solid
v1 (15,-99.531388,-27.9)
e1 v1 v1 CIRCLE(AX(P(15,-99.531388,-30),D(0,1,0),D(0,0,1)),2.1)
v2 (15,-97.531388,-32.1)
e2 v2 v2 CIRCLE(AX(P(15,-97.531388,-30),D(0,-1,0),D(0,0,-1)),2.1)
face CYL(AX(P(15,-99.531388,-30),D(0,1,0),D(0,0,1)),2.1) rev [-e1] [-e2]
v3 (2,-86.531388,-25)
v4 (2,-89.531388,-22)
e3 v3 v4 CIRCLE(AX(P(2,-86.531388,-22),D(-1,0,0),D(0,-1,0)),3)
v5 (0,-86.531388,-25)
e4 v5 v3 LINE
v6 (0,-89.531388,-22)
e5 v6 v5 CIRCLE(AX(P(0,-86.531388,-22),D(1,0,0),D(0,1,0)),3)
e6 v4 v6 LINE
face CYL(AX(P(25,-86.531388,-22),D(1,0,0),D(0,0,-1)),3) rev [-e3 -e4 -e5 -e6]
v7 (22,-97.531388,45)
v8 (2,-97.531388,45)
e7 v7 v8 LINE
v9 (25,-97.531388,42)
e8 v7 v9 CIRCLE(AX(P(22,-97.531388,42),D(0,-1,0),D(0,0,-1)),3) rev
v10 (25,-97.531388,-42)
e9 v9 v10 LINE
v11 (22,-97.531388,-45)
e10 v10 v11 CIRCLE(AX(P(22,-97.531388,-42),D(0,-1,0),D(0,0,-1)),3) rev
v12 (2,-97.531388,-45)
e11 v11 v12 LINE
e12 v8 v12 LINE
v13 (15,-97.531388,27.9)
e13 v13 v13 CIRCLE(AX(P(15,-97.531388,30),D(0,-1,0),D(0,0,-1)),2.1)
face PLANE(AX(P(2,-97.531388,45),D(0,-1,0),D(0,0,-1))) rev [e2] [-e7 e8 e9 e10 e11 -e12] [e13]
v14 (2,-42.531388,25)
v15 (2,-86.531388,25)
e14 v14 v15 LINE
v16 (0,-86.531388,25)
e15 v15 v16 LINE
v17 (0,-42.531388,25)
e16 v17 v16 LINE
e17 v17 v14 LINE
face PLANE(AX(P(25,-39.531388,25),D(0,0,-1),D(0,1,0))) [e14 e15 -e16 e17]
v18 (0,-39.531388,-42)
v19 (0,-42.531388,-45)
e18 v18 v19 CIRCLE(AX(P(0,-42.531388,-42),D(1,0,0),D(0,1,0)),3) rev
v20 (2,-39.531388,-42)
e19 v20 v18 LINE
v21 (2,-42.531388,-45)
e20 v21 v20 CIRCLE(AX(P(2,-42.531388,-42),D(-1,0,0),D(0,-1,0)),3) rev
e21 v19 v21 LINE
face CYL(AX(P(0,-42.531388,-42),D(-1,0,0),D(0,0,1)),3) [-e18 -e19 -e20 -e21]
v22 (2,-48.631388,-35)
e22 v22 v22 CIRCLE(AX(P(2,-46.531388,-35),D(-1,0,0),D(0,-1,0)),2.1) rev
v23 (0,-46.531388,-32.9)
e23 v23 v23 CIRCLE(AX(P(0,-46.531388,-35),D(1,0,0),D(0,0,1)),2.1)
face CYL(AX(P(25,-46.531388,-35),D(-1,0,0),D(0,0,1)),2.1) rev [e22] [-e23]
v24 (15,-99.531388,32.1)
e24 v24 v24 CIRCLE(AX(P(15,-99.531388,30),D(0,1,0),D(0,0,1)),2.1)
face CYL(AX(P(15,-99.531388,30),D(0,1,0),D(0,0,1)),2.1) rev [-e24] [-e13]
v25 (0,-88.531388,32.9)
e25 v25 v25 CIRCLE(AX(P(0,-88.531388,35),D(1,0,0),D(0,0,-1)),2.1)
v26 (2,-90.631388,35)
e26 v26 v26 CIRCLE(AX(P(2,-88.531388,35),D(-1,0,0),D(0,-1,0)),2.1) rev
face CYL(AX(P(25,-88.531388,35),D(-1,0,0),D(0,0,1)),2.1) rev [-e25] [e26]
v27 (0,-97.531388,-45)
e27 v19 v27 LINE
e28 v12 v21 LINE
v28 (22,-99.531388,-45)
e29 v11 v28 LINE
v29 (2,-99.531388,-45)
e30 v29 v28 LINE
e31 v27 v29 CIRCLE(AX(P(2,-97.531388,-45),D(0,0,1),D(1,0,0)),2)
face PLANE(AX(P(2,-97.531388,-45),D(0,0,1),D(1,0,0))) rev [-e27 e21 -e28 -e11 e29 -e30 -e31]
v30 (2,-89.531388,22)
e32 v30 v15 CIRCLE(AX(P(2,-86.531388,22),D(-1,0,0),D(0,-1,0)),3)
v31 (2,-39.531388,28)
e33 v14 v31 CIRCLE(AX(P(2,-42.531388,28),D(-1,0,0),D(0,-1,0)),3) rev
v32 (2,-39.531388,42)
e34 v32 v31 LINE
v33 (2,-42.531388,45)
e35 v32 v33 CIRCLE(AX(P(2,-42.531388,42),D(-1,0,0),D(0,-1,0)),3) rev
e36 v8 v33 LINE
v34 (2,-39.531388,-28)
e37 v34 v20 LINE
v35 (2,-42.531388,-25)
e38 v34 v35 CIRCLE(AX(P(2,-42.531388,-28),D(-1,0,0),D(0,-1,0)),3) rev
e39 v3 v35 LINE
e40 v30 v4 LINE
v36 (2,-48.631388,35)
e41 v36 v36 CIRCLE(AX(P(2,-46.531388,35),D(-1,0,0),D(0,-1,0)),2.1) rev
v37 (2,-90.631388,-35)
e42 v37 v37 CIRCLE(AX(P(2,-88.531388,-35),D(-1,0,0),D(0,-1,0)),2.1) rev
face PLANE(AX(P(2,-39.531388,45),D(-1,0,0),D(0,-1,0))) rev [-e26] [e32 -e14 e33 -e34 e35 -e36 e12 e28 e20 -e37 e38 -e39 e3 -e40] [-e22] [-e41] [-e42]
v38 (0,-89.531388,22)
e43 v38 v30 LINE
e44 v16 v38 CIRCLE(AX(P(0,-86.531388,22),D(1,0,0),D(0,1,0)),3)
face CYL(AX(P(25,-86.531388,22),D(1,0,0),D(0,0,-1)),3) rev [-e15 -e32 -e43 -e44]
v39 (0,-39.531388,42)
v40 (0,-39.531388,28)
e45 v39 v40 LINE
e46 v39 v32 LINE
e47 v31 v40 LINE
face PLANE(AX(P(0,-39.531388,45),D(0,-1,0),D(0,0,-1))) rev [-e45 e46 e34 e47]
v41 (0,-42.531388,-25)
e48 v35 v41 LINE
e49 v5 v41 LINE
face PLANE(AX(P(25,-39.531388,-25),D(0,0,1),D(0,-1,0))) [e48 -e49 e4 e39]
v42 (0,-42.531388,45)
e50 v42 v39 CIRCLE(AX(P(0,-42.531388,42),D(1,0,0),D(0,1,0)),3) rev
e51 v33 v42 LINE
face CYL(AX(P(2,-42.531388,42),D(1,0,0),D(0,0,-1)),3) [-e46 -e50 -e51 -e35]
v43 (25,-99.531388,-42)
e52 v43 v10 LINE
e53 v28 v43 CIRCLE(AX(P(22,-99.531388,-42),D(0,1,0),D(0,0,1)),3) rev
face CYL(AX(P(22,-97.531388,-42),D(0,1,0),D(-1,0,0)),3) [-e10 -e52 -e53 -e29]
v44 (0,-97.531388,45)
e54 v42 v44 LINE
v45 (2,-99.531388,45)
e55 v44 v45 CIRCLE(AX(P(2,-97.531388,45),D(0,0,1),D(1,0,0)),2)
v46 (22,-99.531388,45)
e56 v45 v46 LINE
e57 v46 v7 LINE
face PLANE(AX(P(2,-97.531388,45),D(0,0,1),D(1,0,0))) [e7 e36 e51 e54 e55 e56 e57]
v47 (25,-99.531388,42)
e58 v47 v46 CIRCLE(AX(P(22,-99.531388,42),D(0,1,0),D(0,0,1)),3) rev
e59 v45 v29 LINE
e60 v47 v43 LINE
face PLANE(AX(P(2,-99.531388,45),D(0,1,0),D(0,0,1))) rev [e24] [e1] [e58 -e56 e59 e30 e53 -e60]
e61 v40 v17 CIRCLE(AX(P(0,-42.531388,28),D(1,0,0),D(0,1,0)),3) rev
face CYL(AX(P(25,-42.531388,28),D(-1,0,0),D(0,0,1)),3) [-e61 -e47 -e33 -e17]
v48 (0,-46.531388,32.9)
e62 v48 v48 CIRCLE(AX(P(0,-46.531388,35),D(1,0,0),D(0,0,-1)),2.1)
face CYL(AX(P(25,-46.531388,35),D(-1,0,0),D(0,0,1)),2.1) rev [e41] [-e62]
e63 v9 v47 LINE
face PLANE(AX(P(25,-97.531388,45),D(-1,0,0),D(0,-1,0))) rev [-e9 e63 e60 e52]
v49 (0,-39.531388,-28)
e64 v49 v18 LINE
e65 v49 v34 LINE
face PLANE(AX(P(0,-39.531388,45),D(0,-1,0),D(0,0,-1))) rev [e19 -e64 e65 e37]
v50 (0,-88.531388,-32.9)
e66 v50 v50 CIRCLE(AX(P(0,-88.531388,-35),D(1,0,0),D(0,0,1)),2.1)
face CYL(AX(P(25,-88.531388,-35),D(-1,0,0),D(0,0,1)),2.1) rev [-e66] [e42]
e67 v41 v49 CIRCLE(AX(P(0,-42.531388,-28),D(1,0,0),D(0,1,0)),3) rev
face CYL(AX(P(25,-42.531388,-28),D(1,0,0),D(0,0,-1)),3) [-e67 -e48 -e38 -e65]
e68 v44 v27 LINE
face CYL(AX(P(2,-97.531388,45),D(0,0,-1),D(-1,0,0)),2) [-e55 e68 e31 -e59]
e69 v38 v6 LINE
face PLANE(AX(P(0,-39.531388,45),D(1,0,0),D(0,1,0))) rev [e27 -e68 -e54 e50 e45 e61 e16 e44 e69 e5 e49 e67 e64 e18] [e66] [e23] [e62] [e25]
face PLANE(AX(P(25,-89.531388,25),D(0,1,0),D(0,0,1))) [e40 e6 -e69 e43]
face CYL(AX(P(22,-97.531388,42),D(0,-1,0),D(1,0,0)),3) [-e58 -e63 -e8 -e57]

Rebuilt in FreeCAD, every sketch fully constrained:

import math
import FreeCAD as App
import Part
import Sketcher

V = App.Vector
Q = App.Units.Quantity


def edges_at(feature, points):
    """Names of the edges that pass closest to the given points."""
    edges = feature.Shape.Edges
    near = lambda p: min(range(len(edges)), key=lambda i: edges[i].distToShape(Part.Vertex(*p))[0])
    return sorted({f"Edge{near(p) + 1}" for p in points})

doc = App.newDocument("Part")
body = doc.addObject("PartDesign::Body", "Body")

# Sketch on XY plane
sketch1 = doc.addObject("Sketcher::SketchObject", "Sketch")
body.addObject(sketch1)
sketch1.AttachmentSupport = (doc.XY_Plane, [""])
sketch1.MapMode = "FlatFace"
sketch1.addGeometry([
    Part.LineSegment(V(2, -39.531388, 0), V(0, -39.531388, 0)),  # 0
    Part.LineSegment(V(0, -39.531388, 0), V(0, -97.531388, 0)),  # 1
    Part.ArcOfCircle(Part.Circle(V(2, -97.531388, 0), V(0, 0, 1), 2), math.radians(180), math.radians(270)),  # 2
    Part.LineSegment(V(2, -99.531388, 0), V(25, -99.531388, 0)),  # 3
    Part.LineSegment(V(25, -99.531388, 0), V(25, -97.531388, 0)),  # 4
    Part.LineSegment(V(25, -97.531388, 0), V(2, -97.531388, 0)),  # 5
    Part.LineSegment(V(2, -97.531388, 0), V(2, -39.531388, 0)),  # 6
], False)
sketch1.addConstraint([
    Sketcher.Constraint("Coincident", 0, 2, 1, 1),
    Sketcher.Constraint("Tangent", 1, 2, 2, 1),
    Sketcher.Constraint("Tangent", 2, 2, 3, 1),
    Sketcher.Constraint("Coincident", 3, 2, 4, 1),
    Sketcher.Constraint("Coincident", 4, 2, 5, 1),
    Sketcher.Constraint("Coincident", 5, 2, 6, 1),
    Sketcher.Constraint("Coincident", 6, 2, 0, 1),
    Sketcher.Constraint("Horizontal", 0),
    Sketcher.Constraint("Vertical", 1),
    Sketcher.Constraint("Horizontal", 3),
    Sketcher.Constraint("Vertical", 4),
    Sketcher.Constraint("Horizontal", 5),
    Sketcher.Constraint("Vertical", 6),
    Sketcher.Constraint("Coincident", 5, 2, 2, 3),
    Sketcher.Constraint("PointOnObject", 0, 2, -2),
    Sketcher.Constraint("Radius", 2, Q("2 mm")),
    Sketcher.Constraint("DistanceX", 3, 1, 3, 2, Q("23 mm")),
    Sketcher.Constraint("DistanceY", 1, 2, 1, 1, Q("58 mm")),
    Sketcher.Constraint("DistanceY", 2, 3, -1, 1, Q("97.531388 mm")),
])
pad1 = doc.addObject("PartDesign::Pad", "Pad")
body.addObject(pad1)
pad1.Profile = sketch1
pad1.Length = 90
pad1.Midplane = True

# Sketch on YZ plane
sketch2 = doc.addObject("Sketcher::SketchObject", "Sketch001")
body.addObject(sketch2)
sketch2.AttachmentSupport = (doc.YZ_Plane, [""])
sketch2.MapMode = "FlatFace"
sketch2.addGeometry([
    Part.Circle(V(-46.531388, 35, 0), V(0, 0, 1), 2.1),  # 0
    Part.Circle(V(-88.531388, 35, 0), V(0, 0, 1), 2.1),  # 1
    Part.Circle(V(-88.531388, -35, 0), V(0, 0, 1), 2.1),  # 2
    Part.Circle(V(-46.531388, -35, 0), V(0, 0, 1), 2.1),  # 3
    Part.LineSegment(V(-39.531388, 25, 0), V(-89.531388, 25, 0)),  # 4
    Part.LineSegment(V(-89.531388, 25, 0), V(-89.531388, -25, 0)),  # 5
    Part.LineSegment(V(-89.531388, -25, 0), V(-39.531388, -25, 0)),  # 6
    Part.LineSegment(V(-39.531388, -25, 0), V(-39.531388, 25, 0)),  # 7
], False)
sketch2.addConstraint([
    Sketcher.Constraint("Coincident", 4, 2, 5, 1),
    Sketcher.Constraint("Coincident", 5, 2, 6, 1),
    Sketcher.Constraint("Coincident", 6, 2, 7, 1),
    Sketcher.Constraint("Coincident", 7, 2, 4, 1),
    Sketcher.Constraint("Horizontal", 4),
    Sketcher.Constraint("Vertical", 5),
    Sketcher.Constraint("Horizontal", 6),
    Sketcher.Constraint("Vertical", 7),
    Sketcher.Constraint("Equal", 0, 1),
    Sketcher.Constraint("Equal", 1, 2),
    Sketcher.Constraint("Equal", 2, 3),
    Sketcher.Constraint("Symmetric", 1, 3, 2, 3, -1),
    Sketcher.Constraint("Symmetric", 0, 3, 3, 3, -1),
    Sketcher.Constraint("Horizontal", 0, 3, 1, 3),
    Sketcher.Constraint("Equal", 6, 5),
    Sketcher.Constraint("Diameter", 0, Q("4.2 mm")),
    Sketcher.Constraint("DistanceX", 4, 2, 4, 1, Q("50 mm")),
    Sketcher.Constraint("DistanceY", -1, 1, 0, 3, Q("35 mm")),
    Sketcher.Constraint("DistanceY", -1, 1, 4, 2, Q("25 mm")),
    Sketcher.Constraint("DistanceX", 1, 3, 0, 3, Q("42 mm")),
    Sketcher.Constraint("DistanceX", 4, 2, 1, 3, Q("1 mm")),
    Sketcher.Constraint("DistanceX", 0, 3, -1, 1, Q("46.531388 mm")),
])
pocket1 = doc.addObject("PartDesign::Pocket", "Pocket")
body.addObject(pocket1)
pocket1.Profile = sketch2
pocket1.Type = "ThroughAll"
pocket1.Reversed = True

# Sketch on XZ plane
sketch3 = doc.addObject("Sketcher::SketchObject", "Sketch002")
body.addObject(sketch3)
sketch3.AttachmentSupport = (doc.XZ_Plane, [""])
sketch3.MapMode = "FlatFace"
sketch3.addGeometry([
    Part.Circle(V(15, -30, 0), V(0, 0, 1), 2.1),
    Part.Circle(V(15, 30, 0), V(0, 0, 1), 2.1),
], False)
sketch3.addConstraint([
    Sketcher.Constraint("Equal", 0, 1),
    Sketcher.Constraint("Symmetric", 0, 3, 1, 3, -1),
    Sketcher.Constraint("Diameter", 0, Q("4.2 mm")),
    Sketcher.Constraint("DistanceX", -1, 1, 0, 3, Q("15 mm")),
    Sketcher.Constraint("DistanceY", 0, 3, -1, 1, Q("30 mm")),
])
pocket2 = doc.addObject("PartDesign::Pocket", "Pocket001")
body.addObject(pocket2)
pocket2.Profile = sketch3
pocket2.Type = "ThroughAll"
pocket2.Reversed = True
doc.recompute()

fillet = doc.addObject("PartDesign::Fillet", "Fillet")
body.addObject(fillet)
fillet.Base = (pocket2, edges_at(pocket2, [
    (25, -98.531, 45),
    (1, -39.531, -25),
    (1, -39.531, 45),
    (1, -39.531, 25),
    (1, -89.531, 25),
    (1, -89.531, -25),
    (1, -39.531, -45),
    (25, -98.531, -45),
]))
fillet.Radius = 3

doc.recompute()
